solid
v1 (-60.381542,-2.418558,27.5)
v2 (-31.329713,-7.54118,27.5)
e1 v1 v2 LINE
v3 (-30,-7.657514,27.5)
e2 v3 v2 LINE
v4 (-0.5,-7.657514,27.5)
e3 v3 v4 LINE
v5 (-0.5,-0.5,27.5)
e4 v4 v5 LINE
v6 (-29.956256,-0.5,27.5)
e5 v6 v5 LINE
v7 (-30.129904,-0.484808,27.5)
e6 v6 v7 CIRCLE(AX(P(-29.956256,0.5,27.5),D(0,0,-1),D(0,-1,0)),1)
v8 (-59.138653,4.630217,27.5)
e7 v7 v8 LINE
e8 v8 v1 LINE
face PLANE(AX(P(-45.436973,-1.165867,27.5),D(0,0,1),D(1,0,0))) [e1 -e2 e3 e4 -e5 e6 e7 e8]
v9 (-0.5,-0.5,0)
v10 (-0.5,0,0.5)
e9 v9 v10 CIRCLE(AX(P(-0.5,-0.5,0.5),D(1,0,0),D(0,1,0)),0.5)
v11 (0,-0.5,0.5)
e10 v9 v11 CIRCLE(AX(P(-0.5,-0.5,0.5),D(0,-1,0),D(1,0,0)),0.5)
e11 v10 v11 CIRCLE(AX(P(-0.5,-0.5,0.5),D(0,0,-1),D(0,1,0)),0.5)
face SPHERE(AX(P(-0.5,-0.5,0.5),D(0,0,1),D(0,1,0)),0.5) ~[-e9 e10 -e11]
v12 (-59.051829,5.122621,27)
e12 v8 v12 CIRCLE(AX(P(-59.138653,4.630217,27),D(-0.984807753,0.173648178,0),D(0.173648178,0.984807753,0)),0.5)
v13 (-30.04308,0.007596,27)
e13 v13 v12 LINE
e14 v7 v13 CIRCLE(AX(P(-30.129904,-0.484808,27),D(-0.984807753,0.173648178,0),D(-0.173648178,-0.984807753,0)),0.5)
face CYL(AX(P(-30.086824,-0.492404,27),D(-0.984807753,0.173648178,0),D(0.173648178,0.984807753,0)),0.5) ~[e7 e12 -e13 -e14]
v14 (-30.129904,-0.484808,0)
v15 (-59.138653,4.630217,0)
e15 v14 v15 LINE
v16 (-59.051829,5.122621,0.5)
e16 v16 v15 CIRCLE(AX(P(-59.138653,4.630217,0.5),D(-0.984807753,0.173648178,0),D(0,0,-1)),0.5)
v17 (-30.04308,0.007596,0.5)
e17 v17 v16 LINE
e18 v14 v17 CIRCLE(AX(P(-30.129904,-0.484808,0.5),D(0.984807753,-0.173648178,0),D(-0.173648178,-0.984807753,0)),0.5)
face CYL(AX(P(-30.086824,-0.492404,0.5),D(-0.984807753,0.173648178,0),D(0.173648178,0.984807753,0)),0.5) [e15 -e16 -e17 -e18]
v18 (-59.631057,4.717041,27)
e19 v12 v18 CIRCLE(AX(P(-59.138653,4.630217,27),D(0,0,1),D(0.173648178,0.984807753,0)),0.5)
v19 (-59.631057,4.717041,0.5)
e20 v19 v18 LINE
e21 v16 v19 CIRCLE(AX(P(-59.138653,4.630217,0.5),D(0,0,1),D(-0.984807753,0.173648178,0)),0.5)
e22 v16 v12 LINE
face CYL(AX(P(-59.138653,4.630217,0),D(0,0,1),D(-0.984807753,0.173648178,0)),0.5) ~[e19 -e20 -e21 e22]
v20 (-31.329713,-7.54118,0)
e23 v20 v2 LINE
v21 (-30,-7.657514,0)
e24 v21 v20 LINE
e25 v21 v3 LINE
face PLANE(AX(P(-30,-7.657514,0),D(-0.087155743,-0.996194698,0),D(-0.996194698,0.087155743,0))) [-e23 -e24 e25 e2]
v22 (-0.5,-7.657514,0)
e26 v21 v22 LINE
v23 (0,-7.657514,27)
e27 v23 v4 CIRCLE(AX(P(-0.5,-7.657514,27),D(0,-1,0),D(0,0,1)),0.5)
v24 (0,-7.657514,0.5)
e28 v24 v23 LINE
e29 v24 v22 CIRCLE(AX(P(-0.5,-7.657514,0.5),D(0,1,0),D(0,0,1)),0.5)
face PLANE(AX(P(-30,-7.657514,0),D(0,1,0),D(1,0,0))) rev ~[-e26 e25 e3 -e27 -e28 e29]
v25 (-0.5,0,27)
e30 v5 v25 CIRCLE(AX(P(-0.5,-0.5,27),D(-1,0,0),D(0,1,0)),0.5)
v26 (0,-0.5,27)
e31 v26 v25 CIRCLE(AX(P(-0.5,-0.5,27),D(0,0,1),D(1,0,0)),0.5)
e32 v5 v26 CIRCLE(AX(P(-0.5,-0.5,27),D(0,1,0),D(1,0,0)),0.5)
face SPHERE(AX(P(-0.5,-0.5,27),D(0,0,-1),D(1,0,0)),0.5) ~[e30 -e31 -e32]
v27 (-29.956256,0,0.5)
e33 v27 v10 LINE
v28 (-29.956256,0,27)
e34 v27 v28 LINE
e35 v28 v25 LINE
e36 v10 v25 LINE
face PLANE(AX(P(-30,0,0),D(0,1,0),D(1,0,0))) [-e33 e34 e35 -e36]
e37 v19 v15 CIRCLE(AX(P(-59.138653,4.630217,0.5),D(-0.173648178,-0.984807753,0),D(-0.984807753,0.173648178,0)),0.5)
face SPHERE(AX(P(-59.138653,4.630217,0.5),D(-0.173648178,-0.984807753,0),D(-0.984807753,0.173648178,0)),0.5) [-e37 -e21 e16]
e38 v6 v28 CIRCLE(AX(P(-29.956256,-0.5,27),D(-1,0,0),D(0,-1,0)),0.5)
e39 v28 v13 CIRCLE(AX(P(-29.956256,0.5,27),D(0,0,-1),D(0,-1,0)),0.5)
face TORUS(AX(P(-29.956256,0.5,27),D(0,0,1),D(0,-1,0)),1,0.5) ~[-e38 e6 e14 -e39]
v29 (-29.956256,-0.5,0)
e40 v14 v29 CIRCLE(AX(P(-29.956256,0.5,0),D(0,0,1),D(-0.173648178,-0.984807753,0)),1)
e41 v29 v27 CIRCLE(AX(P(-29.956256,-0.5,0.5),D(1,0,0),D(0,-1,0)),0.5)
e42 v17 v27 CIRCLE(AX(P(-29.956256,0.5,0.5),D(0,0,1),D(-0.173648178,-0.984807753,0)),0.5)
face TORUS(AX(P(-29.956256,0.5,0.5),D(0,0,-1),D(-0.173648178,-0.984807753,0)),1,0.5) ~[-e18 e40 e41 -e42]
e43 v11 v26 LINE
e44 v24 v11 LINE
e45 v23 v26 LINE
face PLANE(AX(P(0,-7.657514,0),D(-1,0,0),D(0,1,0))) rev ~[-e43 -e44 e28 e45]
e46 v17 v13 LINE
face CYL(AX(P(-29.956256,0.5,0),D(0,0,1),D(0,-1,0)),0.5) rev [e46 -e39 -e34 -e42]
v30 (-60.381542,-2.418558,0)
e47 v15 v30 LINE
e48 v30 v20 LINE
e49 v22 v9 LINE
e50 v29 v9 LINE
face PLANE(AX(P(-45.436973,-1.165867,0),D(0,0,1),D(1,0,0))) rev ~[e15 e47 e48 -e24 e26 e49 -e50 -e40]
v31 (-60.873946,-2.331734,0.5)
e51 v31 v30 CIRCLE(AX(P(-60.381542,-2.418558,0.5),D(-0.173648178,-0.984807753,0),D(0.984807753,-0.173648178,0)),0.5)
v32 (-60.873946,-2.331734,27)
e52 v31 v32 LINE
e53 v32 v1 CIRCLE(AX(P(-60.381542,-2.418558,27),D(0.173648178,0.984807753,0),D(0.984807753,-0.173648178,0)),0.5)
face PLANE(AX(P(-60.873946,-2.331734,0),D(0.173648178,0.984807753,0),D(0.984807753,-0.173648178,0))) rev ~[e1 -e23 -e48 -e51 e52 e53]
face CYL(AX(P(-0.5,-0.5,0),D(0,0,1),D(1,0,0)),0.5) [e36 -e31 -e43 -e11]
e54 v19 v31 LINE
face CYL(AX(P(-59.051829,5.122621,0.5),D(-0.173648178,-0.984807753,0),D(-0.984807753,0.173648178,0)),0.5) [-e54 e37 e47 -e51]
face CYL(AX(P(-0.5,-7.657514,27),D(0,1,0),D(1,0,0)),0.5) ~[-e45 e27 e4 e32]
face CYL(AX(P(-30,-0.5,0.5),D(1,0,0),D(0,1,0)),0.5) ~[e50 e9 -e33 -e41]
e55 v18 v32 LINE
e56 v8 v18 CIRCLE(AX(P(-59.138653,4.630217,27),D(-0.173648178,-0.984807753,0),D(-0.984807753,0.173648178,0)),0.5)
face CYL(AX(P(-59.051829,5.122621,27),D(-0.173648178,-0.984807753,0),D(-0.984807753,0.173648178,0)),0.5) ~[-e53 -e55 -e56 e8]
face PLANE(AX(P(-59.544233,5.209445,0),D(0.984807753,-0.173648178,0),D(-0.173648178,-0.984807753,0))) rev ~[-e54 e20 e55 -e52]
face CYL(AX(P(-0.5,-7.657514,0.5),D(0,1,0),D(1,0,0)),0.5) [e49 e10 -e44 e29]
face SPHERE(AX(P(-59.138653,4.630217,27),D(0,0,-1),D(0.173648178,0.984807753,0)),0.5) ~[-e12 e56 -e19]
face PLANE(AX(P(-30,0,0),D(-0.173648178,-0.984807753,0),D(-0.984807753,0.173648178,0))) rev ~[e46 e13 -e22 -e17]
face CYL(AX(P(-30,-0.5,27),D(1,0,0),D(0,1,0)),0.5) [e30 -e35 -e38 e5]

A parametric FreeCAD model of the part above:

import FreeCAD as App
import Part
import Sketcher
from FreeCAD import Vector
Q = App.Units.Quantity


def edges_at(feature, points):
    """Names of the edges that pass closest to the given points."""
    edges = feature.Shape.Edges
    near = lambda p: min(range(len(edges)), key=lambda i: edges[i].distToShape(Part.Vertex(*p))[0])
    return sorted({f"Edge{near(p) + 1}" for p in points})

doc = App.newDocument("Part")
body = doc.addObject("PartDesign::Body", "Body")

# Sketch on XY plane
sketch1 = body.newObject("Sketcher::SketchObject", "Sketch")
sketch1.AttachmentSupport = (doc.getObject("XY_Plane"), [""])
sketch1.MapMode = "FlatFace"
sketch1.addGeometry([
    Part.LineSegment(Vector(-59.5, 5.2, 0), Vector(-60.9, -2.3, 0)),  # 0
    Part.LineSegment(Vector(-60.9, -2.3, 0), Vector(-31.3, -7.5, 0)),  # 1
    Part.LineSegment(Vector(-31.3, -7.5, 0), Vector(-30, -7.7, 0)),  # 2
    Part.LineSegment(Vector(-30, -7.7, 0), Vector(0, -7.7, 0)),  # 3
    Part.LineSegment(Vector(0, -7.7, 0), Vector(0, 0, 0)),  # 4
    Part.LineSegment(Vector(0, 0, 0), Vector(-30, 0, 0)),  # 5
    Part.LineSegment(Vector(-30, 0, 0), Vector(-59.5, 5.2, 0)),  # 6
], False)
sketch1.addConstraint([
    Sketcher.Constraint("Coincident", 0, 2, 1, 1),
    Sketcher.Constraint("Coincident", 1, 2, 2, 1),
    Sketcher.Constraint("Coincident", 2, 2, 3, 1),
    Sketcher.Constraint("Coincident", 3, 2, 4, 1),
    Sketcher.Constraint("Coincident", 4, 2, 5, 1),
    Sketcher.Constraint("Coincident", 5, 2, 6, 1),
    Sketcher.Constraint("Coincident", 6, 2, 0, 1),
    Sketcher.Constraint("Horizontal", 3),
    Sketcher.Constraint("Vertical", 4),
    Sketcher.Constraint("Horizontal", 5),
    Sketcher.Constraint("Coincident", 4, 2, -1, 1),
    Sketcher.Constraint("Perpendicular", 0, 1),
    Sketcher.Constraint("Parallel", 1, 6),
    Sketcher.Constraint("Vertical", 2, 2, 5, 2),
    Sketcher.Constraint("Equal", 1, 6),
    Sketcher.Constraint("DistanceX", 3, 1, 3, 2, 30.0),
    Sketcher.Constraint("Angle", 0, Q("-100 deg")),
    Sketcher.Constraint("Angle", 2, Q("-5 deg")),
    Sketcher.Constraint("Distance", 1, 30.0),
    Sketcher.Constraint("DistanceY", 4, 1, 4, 2, 7.657514),
])
pad1 = body.newObject("PartDesign::Pad", "Pad")
pad1.Profile = sketch1
pad1.Length = 27.5
doc.recompute()

fillet = body.newObject("PartDesign::Fillet", "Fillet")
fillet.Base = (pad1, edges_at(pad1, [
    (-60.209, 1.439, 0),
    (-59.544, 5.209, 13.75),
    (-30, 0, 13.75),
    (0, 0, 13.75),
    (0, -3.829, 27.5),
    (-15, 0, 27.5),
    (-44.772, 2.605, 27.5),
    (-60.209, 1.439, 27.5),
    (-44.772, 2.605, 0),
    (-15, 0, 0),
    (0, -3.829, 0),
]))
fillet.Radius = 0.5

doc.recompute()
